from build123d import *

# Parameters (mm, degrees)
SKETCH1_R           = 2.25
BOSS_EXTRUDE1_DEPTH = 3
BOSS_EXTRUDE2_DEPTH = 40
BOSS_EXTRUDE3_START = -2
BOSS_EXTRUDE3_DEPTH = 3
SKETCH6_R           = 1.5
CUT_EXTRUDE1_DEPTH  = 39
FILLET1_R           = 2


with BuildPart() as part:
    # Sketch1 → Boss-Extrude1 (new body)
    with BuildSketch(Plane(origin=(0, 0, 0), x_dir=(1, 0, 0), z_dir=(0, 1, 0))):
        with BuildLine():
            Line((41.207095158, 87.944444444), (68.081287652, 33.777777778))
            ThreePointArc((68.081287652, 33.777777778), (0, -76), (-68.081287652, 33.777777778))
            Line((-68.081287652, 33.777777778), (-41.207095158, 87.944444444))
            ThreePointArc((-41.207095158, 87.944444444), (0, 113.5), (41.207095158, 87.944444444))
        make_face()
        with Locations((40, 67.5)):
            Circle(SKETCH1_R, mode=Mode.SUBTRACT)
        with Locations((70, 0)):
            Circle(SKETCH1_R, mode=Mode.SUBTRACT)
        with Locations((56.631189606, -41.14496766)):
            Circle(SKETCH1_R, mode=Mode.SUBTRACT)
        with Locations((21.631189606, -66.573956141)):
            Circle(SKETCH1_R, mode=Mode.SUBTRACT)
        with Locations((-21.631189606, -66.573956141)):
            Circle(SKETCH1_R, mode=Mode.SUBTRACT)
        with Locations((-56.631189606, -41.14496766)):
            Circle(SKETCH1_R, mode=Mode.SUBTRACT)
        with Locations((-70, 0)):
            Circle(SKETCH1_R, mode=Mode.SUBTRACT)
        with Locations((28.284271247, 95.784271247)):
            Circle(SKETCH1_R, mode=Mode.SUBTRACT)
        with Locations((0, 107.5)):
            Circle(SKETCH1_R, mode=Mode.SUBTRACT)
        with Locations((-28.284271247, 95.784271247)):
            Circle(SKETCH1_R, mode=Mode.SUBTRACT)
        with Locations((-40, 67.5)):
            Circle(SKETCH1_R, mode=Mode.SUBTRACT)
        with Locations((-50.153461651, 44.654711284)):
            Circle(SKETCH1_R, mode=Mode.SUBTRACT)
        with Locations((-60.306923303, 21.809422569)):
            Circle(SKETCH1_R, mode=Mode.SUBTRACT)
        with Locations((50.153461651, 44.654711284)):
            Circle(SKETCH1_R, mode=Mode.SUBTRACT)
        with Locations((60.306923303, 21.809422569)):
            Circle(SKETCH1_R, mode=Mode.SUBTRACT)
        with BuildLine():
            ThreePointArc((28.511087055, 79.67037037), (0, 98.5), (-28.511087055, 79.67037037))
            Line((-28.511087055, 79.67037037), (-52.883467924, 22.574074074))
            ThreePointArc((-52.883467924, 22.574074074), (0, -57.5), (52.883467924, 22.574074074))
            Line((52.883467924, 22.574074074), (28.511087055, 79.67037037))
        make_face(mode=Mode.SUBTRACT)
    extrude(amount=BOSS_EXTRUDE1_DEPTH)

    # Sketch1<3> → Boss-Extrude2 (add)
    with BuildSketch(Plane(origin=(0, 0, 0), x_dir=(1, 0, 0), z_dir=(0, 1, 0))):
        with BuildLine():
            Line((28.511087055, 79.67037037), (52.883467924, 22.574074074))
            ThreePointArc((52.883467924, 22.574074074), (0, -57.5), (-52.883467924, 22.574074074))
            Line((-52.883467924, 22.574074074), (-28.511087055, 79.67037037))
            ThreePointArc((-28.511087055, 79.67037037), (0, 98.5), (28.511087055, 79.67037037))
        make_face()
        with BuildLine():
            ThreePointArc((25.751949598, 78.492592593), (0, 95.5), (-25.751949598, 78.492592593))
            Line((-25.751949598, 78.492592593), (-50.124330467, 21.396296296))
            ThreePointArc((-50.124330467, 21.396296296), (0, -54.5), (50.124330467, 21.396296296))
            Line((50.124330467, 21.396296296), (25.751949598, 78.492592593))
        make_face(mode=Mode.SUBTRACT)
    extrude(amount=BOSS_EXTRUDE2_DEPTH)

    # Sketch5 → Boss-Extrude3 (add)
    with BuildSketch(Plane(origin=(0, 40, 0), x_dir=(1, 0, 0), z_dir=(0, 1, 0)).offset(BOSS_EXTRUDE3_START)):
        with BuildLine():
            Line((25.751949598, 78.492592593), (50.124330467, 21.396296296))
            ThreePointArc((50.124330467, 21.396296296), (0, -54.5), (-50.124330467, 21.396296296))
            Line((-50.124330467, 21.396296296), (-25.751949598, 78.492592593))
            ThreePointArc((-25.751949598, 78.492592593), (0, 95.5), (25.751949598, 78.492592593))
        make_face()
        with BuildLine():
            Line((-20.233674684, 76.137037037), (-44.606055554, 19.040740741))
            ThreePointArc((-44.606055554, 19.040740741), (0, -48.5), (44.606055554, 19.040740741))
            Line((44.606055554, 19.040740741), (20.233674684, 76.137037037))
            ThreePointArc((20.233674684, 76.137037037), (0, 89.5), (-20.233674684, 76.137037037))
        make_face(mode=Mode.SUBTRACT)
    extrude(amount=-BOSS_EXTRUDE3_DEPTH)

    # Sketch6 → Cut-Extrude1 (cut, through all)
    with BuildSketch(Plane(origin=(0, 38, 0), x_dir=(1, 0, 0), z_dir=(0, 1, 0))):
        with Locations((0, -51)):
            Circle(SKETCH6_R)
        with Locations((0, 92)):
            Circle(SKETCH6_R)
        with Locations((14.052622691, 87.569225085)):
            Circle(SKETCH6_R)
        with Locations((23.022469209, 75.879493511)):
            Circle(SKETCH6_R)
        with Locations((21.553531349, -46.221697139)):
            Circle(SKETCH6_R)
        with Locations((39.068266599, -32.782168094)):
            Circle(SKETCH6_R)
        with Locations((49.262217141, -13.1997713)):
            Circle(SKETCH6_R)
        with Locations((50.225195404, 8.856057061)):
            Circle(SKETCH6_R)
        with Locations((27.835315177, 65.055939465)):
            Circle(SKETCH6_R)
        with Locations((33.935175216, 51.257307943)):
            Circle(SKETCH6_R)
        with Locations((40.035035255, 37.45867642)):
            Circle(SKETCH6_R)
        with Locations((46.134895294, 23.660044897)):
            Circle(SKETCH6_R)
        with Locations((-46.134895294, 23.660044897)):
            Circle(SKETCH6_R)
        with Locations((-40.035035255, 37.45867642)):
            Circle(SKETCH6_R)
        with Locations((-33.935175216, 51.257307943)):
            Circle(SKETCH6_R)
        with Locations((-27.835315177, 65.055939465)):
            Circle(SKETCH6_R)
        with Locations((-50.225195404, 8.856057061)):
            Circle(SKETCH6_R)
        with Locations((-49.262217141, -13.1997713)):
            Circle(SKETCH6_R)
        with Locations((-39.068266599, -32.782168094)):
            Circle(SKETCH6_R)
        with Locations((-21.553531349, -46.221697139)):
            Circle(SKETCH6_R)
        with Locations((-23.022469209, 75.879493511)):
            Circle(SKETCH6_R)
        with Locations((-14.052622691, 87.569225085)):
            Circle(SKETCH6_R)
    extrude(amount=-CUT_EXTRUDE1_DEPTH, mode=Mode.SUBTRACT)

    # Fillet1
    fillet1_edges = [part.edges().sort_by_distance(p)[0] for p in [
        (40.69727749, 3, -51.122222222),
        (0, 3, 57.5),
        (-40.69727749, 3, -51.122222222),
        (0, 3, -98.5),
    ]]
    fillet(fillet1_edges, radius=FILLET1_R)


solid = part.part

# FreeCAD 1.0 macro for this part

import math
import FreeCAD as App
import Part
import Sketcher
Q = App.Units.Quantity


def edges_at(feature, points):
    """Names of the edges that pass closest to the given points."""
    edges = feature.Shape.Edges
    near = lambda p: min(range(len(edges)), key=lambda i: edges[i].distToShape(Part.Vertex(*p))[0])
    return sorted({f"Edge{near(p) + 1}" for p in points})

doc = App.newDocument("Part")
params = doc.addObject("Spreadsheet::Sheet", "Params")
for row, (alias, value) in enumerate([
    ("sketch1_radius", "46 mm"),
    ("sketch1_radius2", "76 mm"),
    ("sketch1_radius3", "31 mm"),
    ("sketch1_diameter", "4.5 mm"),
    ("sketch1_radius4", "57.5 mm"),
    ("pad1_length", "3 mm"),
    ("sketch2_radius", "31 mm"),
    ("sketch2_radius2", "28 mm"),
    ("sketch2_radius3", "57.5 mm"),
    ("pad2_length", "40 mm"),
    ("sketch3_radius", "28 mm"),
    ("sketch3_radius2", "22 mm"),
    ("sketch3_radius3", "54.5 mm"),
    ("pad3_length", "3 mm"),
    ("sketch4_diameter", "3 mm"),
    ("fillet_radius", "2 mm"),
], start=1):
    params.set(f"A{row}", alias)
    params.set(f"B{row}", "=" + value)
    params.setAlias(f"B{row}", alias)

body = doc.addObject("PartDesign::Body", "Body")

# Sketch on XZ plane
sketch1 = doc.addObject("Sketcher::SketchObject", "Sketch")
body.addObject(sketch1)
sketch1.AttachmentSupport = (doc.XZ_Plane, [""])
sketch1.MapMode = "FlatFace"
sketch1.addGeometry([
    Part.LineSegment(App.Vector(68.1, -33.8, 0), App.Vector(41.2, -87.9, 0)),  # 0
    Part.ArcOfCircle(Part.Circle(App.Vector(0, -67.5, 0), App.Vector(0, 0, 1), 46), math.radians(-154), math.radians(-26)),  # 1
    Part.LineSegment(App.Vector(-41.2, -87.9, 0), App.Vector(-68.1, -33.8, 0)),  # 2
    Part.ArcOfCircle(Part.Circle(App.Vector(0, 0, 0), App.Vector(0, 0, 1), 76), math.radians(-26), math.radians(206)),  # 3
    Part.Circle(App.Vector(56.6, 41.1, 0), App.Vector(0, 0, 1), 2.2),  # 4
    Part.Circle(App.Vector(21.6, 66.6, 0), App.Vector(0, 0, 1), 2.2),  # 5
    Part.Circle(App.Vector(70, 0, 0), App.Vector(0, 0, 1), 2.2),  # 6
    Part.Circle(App.Vector(-21.6, 66.6, 0), App.Vector(0, 0, 1), 2.2),  # 7
    Part.Circle(App.Vector(-56.6, 41.1, 0), App.Vector(0, 0, 1), 2.2),  # 8
    Part.Circle(App.Vector(-70, 0, 0), App.Vector(0, 0, 1), 2.2),  # 9
    Part.Circle(App.Vector(60.3, -21.8, 0), App.Vector(0, 0, 1), 2.2),  # 10
    Part.Circle(App.Vector(50.2, -44.7, 0), App.Vector(0, 0, 1), 2.2),  # 11
    Part.Circle(App.Vector(40, -67.5, 0), App.Vector(0, 0, 1), 2.2),  # 12
    Part.Circle(App.Vector(28.3, -95.8, 0), App.Vector(0, 0, 1), 2.2),  # 13
    Part.LineSegment(App.Vector(28.5, -79.7, 0), App.Vector(52.9, -22.6, 0)),  # 14
    Part.ArcOfCircle(Part.Circle(App.Vector(0, 0, 0), App.Vector(0, 0, 1), 57.5), math.radians(-23), math.radians(203)),  # 15
    Part.LineSegment(App.Vector(-52.9, -22.6, 0), App.Vector(-28.5, -79.7, 0)),  # 16
    Part.ArcOfCircle(Part.Circle(App.Vector(0, -67.5, 0), App.Vector(0, 0, 1), 31), math.radians(-157), math.radians(-23)),  # 17
    Part.Circle(App.Vector(-60.3, -21.8, 0), App.Vector(0, 0, 1), 2.2),  # 18
    Part.Circle(App.Vector(-50.2, -44.7, 0), App.Vector(0, 0, 1), 2.2),  # 19
    Part.Circle(App.Vector(0, -107.5, 0), App.Vector(0, 0, 1), 2.2),  # 20
    Part.Circle(App.Vector(-28.3, -95.8, 0), App.Vector(0, 0, 1), 2.2),  # 21
    Part.Circle(App.Vector(-40, -67.5, 0), App.Vector(0, 0, 1), 2.2),  # 22
], False)
sketch1.addConstraint([
    Sketcher.Constraint("Tangent", 0, 2, 1, 2),
    Sketcher.Constraint("Tangent", 1, 1, 2, 1),
    Sketcher.Constraint("Tangent", 2, 2, 3, 2),
    Sketcher.Constraint("Tangent", 3, 1, 0, 1),
    Sketcher.Constraint("Tangent", 14, 2, 15, 1),
    Sketcher.Constraint("Tangent", 15, 2, 16, 1),
    Sketcher.Constraint("Tangent", 16, 2, 17, 1),
    Sketcher.Constraint("Tangent", 17, 2, 14, 1),
    Sketcher.Constraint("Coincident", 3, 3, -1, 1),
    Sketcher.Constraint("Coincident", 15, 3, -1, 1),
    Sketcher.Constraint("Coincident", 17, 3, 1, 3),
    Sketcher.Constraint("Equal", 4, 5),
    Sketcher.Constraint("Equal", 5, 6),
    Sketcher.Constraint("Equal", 6, 7),
    Sketcher.Constraint("Equal", 7, 8),
    Sketcher.Constraint("Equal", 8, 9),
    Sketcher.Constraint("Equal", 9, 10),
    Sketcher.Constraint("Equal", 10, 11),
    Sketcher.Constraint("Equal", 11, 12),
    Sketcher.Constraint("Equal", 12, 13),
    Sketcher.Constraint("Equal", 13, 18),
    Sketcher.Constraint("Equal", 18, 19),
    Sketcher.Constraint("Equal", 19, 20),
    Sketcher.Constraint("Equal", 20, 21),
    Sketcher.Constraint("Equal", 21, 22),
    Sketcher.Constraint("Symmetric", 6, 3, 9, 3, -1, 1),
    Sketcher.Constraint("Symmetric", 5, 3, 7, 3, -2),
    Sketcher.Constraint("Symmetric", 4, 3, 8, 3, -2),
    Sketcher.Constraint("Symmetric", 10, 3, 18, 3, -2),
    Sketcher.Constraint("Symmetric", 11, 3, 19, 3, -2),
    Sketcher.Constraint("Symmetric", 13, 3, 21, 3, -2),
    Sketcher.Constraint("Symmetric", 12, 3, 22, 3, -2),
    Sketcher.Constraint("PointOnObject", 1, 3, -2),
    Sketcher.Constraint("PointOnObject", 6, 3, -1),
    Sketcher.Constraint("PointOnObject", 20, 3, -2),
    Sketcher.Constraint("Horizontal", 1, 3, 12, 3),
    Sketcher.Constraint("Radius", 1, Q("46 mm")),
    Sketcher.Constraint("Radius", 3, Q("76 mm")),
    Sketcher.Constraint("Radius", 17, Q("31 mm")),
    Sketcher.Constraint("Diameter", 4, Q("4.5 mm")),
    Sketcher.Constraint("Radius", 15, Q("57.5 mm")),
    Sketcher.Constraint("DistanceX", -1, 1, 6, 3, Q("70 mm")),
    Sketcher.Constraint("DistanceX", -1, 1, 12, 3, Q("40 mm")),
    Sketcher.Constraint("DistanceX", 5, 3, 4, 3, Q("35 mm")),
    Sketcher.Constraint("DistanceY", 20, 3, 1, 3, Q("40 mm")),
    Sketcher.Constraint("DistanceY", 1, 3, -1, 1, Q("67.5 mm")),
    Sketcher.Constraint("DistanceY", 21, 3, 16, 2, Q("16.113901 mm")),
    Sketcher.Constraint("DistanceX", -1, 1, 4, 3, Q("56.63119 mm")),
    Sketcher.Constraint("DistanceX", -1, 1, 11, 3, Q("50.153462 mm")),
    Sketcher.Constraint("DistanceY", 11, 3, -1, 1, Q("44.654711 mm")),
    Sketcher.Constraint("DistanceX", -1, 1, 13, 3, Q("28.284271 mm")),
    Sketcher.Constraint("DistanceY", 4, 3, 5, 3, Q("25.428988 mm")),
    Sketcher.Constraint("DistanceY", 10, 3, 4, 3, Q("62.95439 mm")),
    Sketcher.Constraint("DistanceX", 11, 3, 10, 3, Q("10.153462 mm")),
    Sketcher.Constraint("DistanceY", 11, 3, 10, 3, Q("22.845289 mm")),
])
sketch1.setExpression("Constraints[36]", "Params.sketch1_radius")
sketch1.setExpression("Constraints[37]", "Params.sketch1_radius2")
sketch1.setExpression("Constraints[38]", "Params.sketch1_radius3")
sketch1.setExpression("Constraints[39]", "Params.sketch1_diameter")
sketch1.setExpression("Constraints[40]", "Params.sketch1_radius4")
pad1 = doc.addObject("PartDesign::Pad", "Pad")
body.addObject(pad1)
pad1.Profile = sketch1
pad1.setExpression("Length", "Params.pad1_length")
pad1.Reversed = True

# Sketch on XZ plane
sketch2 = doc.addObject("Sketcher::SketchObject", "Sketch001")
body.addObject(sketch2)
sketch2.AttachmentSupport = (doc.XZ_Plane, [""])
sketch2.MapMode = "FlatFace"
sketch2.addGeometry([
    Part.LineSegment(App.Vector(53, -23, 0), App.Vector(29, -80, 0)),  # 0
    Part.ArcOfCircle(Part.Circle(App.Vector(0, -68, 0), App.Vector(0, 0, 1), 31), math.radians(-157), math.radians(-23)),  # 1
    Part.LineSegment(App.Vector(-29, -80, 0), App.Vector(-53, -23, 0)),  # 2
    Part.ArcOfCircle(Part.Circle(App.Vector(0, 0, 0), App.Vector(0, 0, 1), 58), math.radians(-23), math.radians(203)),  # 3
    Part.LineSegment(App.Vector(26, -78, 0), App.Vector(50, -21, 0)),  # 4
    Part.ArcOfCircle(Part.Circle(App.Vector(0, 0, 0), App.Vector(0, 0, 1), 54), math.radians(-23), math.radians(203)),  # 5
    Part.LineSegment(App.Vector(-50, -21, 0), App.Vector(-26, -78, 0)),  # 6
    Part.ArcOfCircle(Part.Circle(App.Vector(0, -68, 0), App.Vector(0, 0, 1), 28), math.radians(-157), math.radians(-23)),  # 7
], False)
sketch2.addConstraint([
    Sketcher.Constraint("Tangent", 0, 2, 1, 2),
    Sketcher.Constraint("Tangent", 1, 1, 2, 1),
    Sketcher.Constraint("Tangent", 2, 2, 3, 2),
    Sketcher.Constraint("Tangent", 3, 1, 0, 1),
    Sketcher.Constraint("Tangent", 4, 2, 5, 1),
    Sketcher.Constraint("Tangent", 5, 2, 6, 1),
    Sketcher.Constraint("Tangent", 6, 2, 7, 1),
    Sketcher.Constraint("Tangent", 7, 2, 4, 1),
    Sketcher.Constraint("Coincident", 3, 3, -1, 1),
    Sketcher.Constraint("Coincident", 5, 3, -1, 1),
    Sketcher.Constraint("Coincident", 7, 3, 1, 3),
    Sketcher.Constraint("PointOnObject", 1, 3, -2),
    Sketcher.Constraint("Parallel", 0, 4),
    Sketcher.Constraint("Radius", 1, Q("31 mm")),
    Sketcher.Constraint("Radius", 7, Q("28 mm")),
    Sketcher.Constraint("Radius", 3, Q("57.5 mm")),
    Sketcher.Constraint("DistanceY", 1, 3, -1, 1, Q("67.5 mm")),
])
sketch2.setExpression("Constraints[13]", "Params.sketch2_radius")
sketch2.setExpression("Constraints[14]", "Params.sketch2_radius2")
sketch2.setExpression("Constraints[15]", "Params.sketch2_radius3")
pad2 = doc.addObject("PartDesign::Pad", "Pad001")
body.addObject(pad2)
pad2.Profile = sketch2
pad2.setExpression("Length", "Params.pad2_length")
pad2.Reversed = True

# Sketch on XZ plane
sketch3 = doc.addObject("Sketcher::SketchObject", "Sketch002")
body.addObject(sketch3)
sketch3.AttachmentSupport = (doc.XZ_Plane, [""])
sketch3.MapMode = "FlatFace"
sketch3.AttachmentOffset = App.Placement(App.Vector(0, 0, -38), App.Rotation())
sketch3.addGeometry([
    Part.LineSegment(App.Vector(50, -21, 0), App.Vector(26, -78, 0)),  # 0
    Part.ArcOfCircle(Part.Circle(App.Vector(0, -68, 0), App.Vector(0, 0, 1), 28), math.radians(-157), math.radians(-23)),  # 1
    Part.LineSegment(App.Vector(-26, -78, 0), App.Vector(-50, -21, 0)),  # 2
    Part.ArcOfCircle(Part.Circle(App.Vector(0, 0, 0), App.Vector(0, 0, 1), 54), math.radians(-23), math.radians(203)),  # 3
    Part.ArcOfCircle(Part.Circle(App.Vector(0, -68, 0), App.Vector(0, 0, 1), 22), math.radians(-157), math.radians(-23)),  # 4
    Part.LineSegment(App.Vector(20, -76, 0), App.Vector(45, -19, 0)),  # 5
    Part.ArcOfCircle(Part.Circle(App.Vector(0, 0, 0), App.Vector(0, 0, 1), 48), math.radians(-23), math.radians(203)),  # 6
    Part.LineSegment(App.Vector(-45, -19, 0), App.Vector(-20, -76, 0)),  # 7
], False)
sketch3.addConstraint([
    Sketcher.Constraint("Tangent", 0, 2, 1, 2),
    Sketcher.Constraint("Tangent", 1, 1, 2, 1),
    Sketcher.Constraint("Tangent", 2, 2, 3, 2),
    Sketcher.Constraint("Tangent", 3, 1, 0, 1),
    Sketcher.Constraint("Tangent", 4, 2, 5, 1),
    Sketcher.Constraint("Tangent", 5, 2, 6, 1),
    Sketcher.Constraint("Tangent", 6, 2, 7, 1),
    Sketcher.Constraint("Tangent", 7, 2, 4, 1),
    Sketcher.Constraint("Coincident", 3, 3, -1, 1),
    Sketcher.Constraint("Coincident", 6, 3, -1, 1),
    Sketcher.Constraint("Coincident", 4, 3, 1, 3),
    Sketcher.Constraint("PointOnObject", 1, 3, -2),
    Sketcher.Constraint("Parallel", 0, 5),
    Sketcher.Constraint("Radius", 1, Q("28 mm")),
    Sketcher.Constraint("Radius", 4, Q("22 mm")),
    Sketcher.Constraint("Radius", 3, Q("54.5 mm")),
    Sketcher.Constraint("DistanceY", 1, 3, -1, 1, Q("67.5 mm")),
])
sketch3.setExpression("Constraints[13]", "Params.sketch3_radius")
sketch3.setExpression("Constraints[14]", "Params.sketch3_radius2")
sketch3.setExpression("Constraints[15]", "Params.sketch3_radius3")
pad3 = doc.addObject("PartDesign::Pad", "Pad002")
body.addObject(pad3)
pad3.Profile = sketch3
pad3.setExpression("Length", "Params.pad3_length")

# Sketch on XZ plane
sketch4 = doc.addObject("Sketcher::SketchObject", "Sketch003")
body.addObject(sketch4)
sketch4.AttachmentSupport = (doc.XZ_Plane, [""])
sketch4.MapMode = "FlatFace"
sketch4.AttachmentOffset = App.Placement(App.Vector(0, 0, -38), App.Rotation())
sketch4.addGeometry([
    Part.Circle(App.Vector(0, 51, 0), App.Vector(0, 0, 1), 1.5),  # 0
    Part.Circle(App.Vector(0, -92, 0), App.Vector(0, 0, 1), 1.5),  # 1
    Part.Circle(App.Vector(14.1, -87.6, 0), App.Vector(0, 0, 1), 1.5),  # 2
    Part.Circle(App.Vector(23, -75.9, 0), App.Vector(0, 0, 1), 1.5),  # 3
    Part.Circle(App.Vector(21.6, 46.2, 0), App.Vector(0, 0, 1), 1.5),  # 4
    Part.Circle(App.Vector(39.1, 32.8, 0), App.Vector(0, 0, 1), 1.5),  # 5
    Part.Circle(App.Vector(49.3, 13.2, 0), App.Vector(0, 0, 1), 1.5),  # 6
    Part.Circle(App.Vector(50.2, -8.9, 0), App.Vector(0, 0, 1), 1.5),  # 7
    Part.Circle(App.Vector(27.8, -65.1, 0), App.Vector(0, 0, 1), 1.5),  # 8
    Part.Circle(App.Vector(33.9, -51.3, 0), App.Vector(0, 0, 1), 1.5),  # 9
    Part.Circle(App.Vector(40, -37.5, 0), App.Vector(0, 0, 1), 1.5),  # 10
    Part.Circle(App.Vector(46.1, -23.7, 0), App.Vector(0, 0, 1), 1.5),  # 11
    Part.Circle(App.Vector(-46.1, -23.7, 0), App.Vector(0, 0, 1), 1.5),  # 12
    Part.Circle(App.Vector(-40, -37.5, 0), App.Vector(0, 0, 1), 1.5),  # 13
    Part.Circle(App.Vector(-33.9, -51.3, 0), App.Vector(0, 0, 1), 1.5),  # 14
    Part.Circle(App.Vector(-27.8, -65.1, 0), App.Vector(0, 0, 1), 1.5),  # 15
    Part.Circle(App.Vector(-50.2, -8.9, 0), App.Vector(0, 0, 1), 1.5),  # 16
    Part.Circle(App.Vector(-49.3, 13.2, 0), App.Vector(0, 0, 1), 1.5),  # 17
    Part.Circle(App.Vector(-39.1, 32.8, 0), App.Vector(0, 0, 1), 1.5),  # 18
    Part.Circle(App.Vector(-21.6, 46.2, 0), App.Vector(0, 0, 1), 1.5),  # 19
    Part.Circle(App.Vector(-23, -75.9, 0), App.Vector(0, 0, 1), 1.5),  # 20
    Part.Circle(App.Vector(-14.1, -87.6, 0), App.Vector(0, 0, 1), 1.5),  # 21
], False)
sketch4.addConstraint([
    Sketcher.Constraint("Equal", 0, 1),
    Sketcher.Constraint("Equal", 1, 2),
    Sketcher.Constraint("Equal", 2, 3),
    Sketcher.Constraint("Equal", 3, 4),
    Sketcher.Constraint("Equal", 4, 5),
    Sketcher.Constraint("Equal", 5, 6),
    Sketcher.Constraint("Equal", 6, 7),
    Sketcher.Constraint("Equal", 7, 8),
    Sketcher.Constraint("Equal", 8, 9),
    Sketcher.Constraint("Equal", 9, 10),
    Sketcher.Constraint("Equal", 10, 11),
    Sketcher.Constraint("Equal", 11, 12),
    Sketcher.Constraint("Equal", 12, 13),
    Sketcher.Constraint("Equal", 13, 14),
    Sketcher.Constraint("Equal", 14, 15),
    Sketcher.Constraint("Equal", 15, 16),
    Sketcher.Constraint("Equal", 16, 17),
    Sketcher.Constraint("Equal", 17, 18),
    Sketcher.Constraint("Equal", 18, 19),
    Sketcher.Constraint("Equal", 19, 20),
    Sketcher.Constraint("Equal", 20, 21),
    Sketcher.Constraint("Symmetric", 11, 3, 12, 3, -2),
    Sketcher.Constraint("Symmetric", 10, 3, 13, 3, -2),
    Sketcher.Constraint("Symmetric", 9, 3, 14, 3, -2),
    Sketcher.Constraint("Symmetric", 8, 3, 15, 3, -2),
    Sketcher.Constraint("Symmetric", 7, 3, 16, 3, -2),
    Sketcher.Constraint("Symmetric", 6, 3, 17, 3, -2),
    Sketcher.Constraint("Symmetric", 5, 3, 18, 3, -2),
    Sketcher.Constraint("Symmetric", 4, 3, 19, 3, -2),
    Sketcher.Constraint("Symmetric", 3, 3, 20, 3, -2),
    Sketcher.Constraint("Symmetric", 2, 3, 21, 3, -2),
    Sketcher.Constraint("PointOnObject", 0, 3, -2),
    Sketcher.Constraint("PointOnObject", 1, 3, -2),
    Sketcher.Constraint("Diameter", 0, Q("3 mm")),
    Sketcher.Constraint("DistanceY", -1, 1, 0, 3, Q("51 mm")),
    Sketcher.Constraint("DistanceY", 1, 3, -1, 1, Q("92 mm")),
    Sketcher.Constraint("DistanceX", 8, 3, 6, 3, Q("21.426902 mm")),
    Sketcher.Constraint("DistanceX", 11, 3, 7, 3, Q("4.0903 mm")),
    Sketcher.Constraint("DistanceX", -1, 1, 3, 3, Q("23.022469 mm")),
    Sketcher.Constraint("DistanceX", -1, 1, 4, 3, Q("21.553531 mm")),
    Sketcher.Constraint("DistanceY", -1, 1, 5, 3, Q("32.782168 mm")),
    Sketcher.Constraint("DistanceY", -1, 1, 6, 3, Q("13.199771 mm")),
    Sketcher.Constraint("DistanceY", 8, 3, -1, 1, Q("65.055939 mm")),
    Sketcher.Constraint("DistanceY", 2, 3, 3, 3, Q("11.689732 mm")),
    Sketcher.Constraint("DistanceY", 3, 3, 4, 3, Q("122.101191 mm")),
    Sketcher.Constraint("DistanceX", 2, 3, 4, 3, Q("7.500909 mm")),
    Sketcher.Constraint("DistanceY", 5, 3, 4, 3, Q("13.439529 mm")),
    Sketcher.Constraint("DistanceX", 5, 3, 6, 3, Q("10.193951 mm")),
    Sketcher.Constraint("DistanceX", 6, 3, 7, 3, Q("0.962978 mm")),
    Sketcher.Constraint("DistanceY", 7, 3, 6, 3, Q("22.055828 mm")),
    Sketcher.Constraint("DistanceX", 8, 3, 9, 3, Q("6.09986 mm")),
    Sketcher.Constraint("DistanceY", 8, 3, 9, 3, Q("13.798632 mm")),
    Sketcher.Constraint("DistanceX", 9, 3, 10, 3, Q("6.09986 mm")),
    Sketcher.Constraint("DistanceY", 9, 3, 10, 3, Q("13.798632 mm")),
    Sketcher.Constraint("DistanceY", 10, 3, 11, 3, Q("13.798632 mm")),
    Sketcher.Constraint("DistanceX", 12, 3, 9, 3, Q("80.070071 mm")),
])
sketch4.setExpression("Constraints[33]", "Params.sketch4_diameter")
pocket1 = doc.addObject("PartDesign::Pocket", "Pocket")
body.addObject(pocket1)
pocket1.Profile = sketch4
pocket1.Type = "ThroughAll"
pocket1.Reversed = True
doc.recompute()

fillet = doc.addObject("PartDesign::Fillet", "Fillet")
body.addObject(fillet)
fillet.Base = (pocket1, edges_at(pocket1, [
    (40.697, 3, -51.122),
    (0, 3, 57.5),
    (-40.697, 3, -51.122),
    (0, 3, -98.5),
]))
fillet.setExpression("Radius", "Params.fillet_radius")

doc.recompute()
